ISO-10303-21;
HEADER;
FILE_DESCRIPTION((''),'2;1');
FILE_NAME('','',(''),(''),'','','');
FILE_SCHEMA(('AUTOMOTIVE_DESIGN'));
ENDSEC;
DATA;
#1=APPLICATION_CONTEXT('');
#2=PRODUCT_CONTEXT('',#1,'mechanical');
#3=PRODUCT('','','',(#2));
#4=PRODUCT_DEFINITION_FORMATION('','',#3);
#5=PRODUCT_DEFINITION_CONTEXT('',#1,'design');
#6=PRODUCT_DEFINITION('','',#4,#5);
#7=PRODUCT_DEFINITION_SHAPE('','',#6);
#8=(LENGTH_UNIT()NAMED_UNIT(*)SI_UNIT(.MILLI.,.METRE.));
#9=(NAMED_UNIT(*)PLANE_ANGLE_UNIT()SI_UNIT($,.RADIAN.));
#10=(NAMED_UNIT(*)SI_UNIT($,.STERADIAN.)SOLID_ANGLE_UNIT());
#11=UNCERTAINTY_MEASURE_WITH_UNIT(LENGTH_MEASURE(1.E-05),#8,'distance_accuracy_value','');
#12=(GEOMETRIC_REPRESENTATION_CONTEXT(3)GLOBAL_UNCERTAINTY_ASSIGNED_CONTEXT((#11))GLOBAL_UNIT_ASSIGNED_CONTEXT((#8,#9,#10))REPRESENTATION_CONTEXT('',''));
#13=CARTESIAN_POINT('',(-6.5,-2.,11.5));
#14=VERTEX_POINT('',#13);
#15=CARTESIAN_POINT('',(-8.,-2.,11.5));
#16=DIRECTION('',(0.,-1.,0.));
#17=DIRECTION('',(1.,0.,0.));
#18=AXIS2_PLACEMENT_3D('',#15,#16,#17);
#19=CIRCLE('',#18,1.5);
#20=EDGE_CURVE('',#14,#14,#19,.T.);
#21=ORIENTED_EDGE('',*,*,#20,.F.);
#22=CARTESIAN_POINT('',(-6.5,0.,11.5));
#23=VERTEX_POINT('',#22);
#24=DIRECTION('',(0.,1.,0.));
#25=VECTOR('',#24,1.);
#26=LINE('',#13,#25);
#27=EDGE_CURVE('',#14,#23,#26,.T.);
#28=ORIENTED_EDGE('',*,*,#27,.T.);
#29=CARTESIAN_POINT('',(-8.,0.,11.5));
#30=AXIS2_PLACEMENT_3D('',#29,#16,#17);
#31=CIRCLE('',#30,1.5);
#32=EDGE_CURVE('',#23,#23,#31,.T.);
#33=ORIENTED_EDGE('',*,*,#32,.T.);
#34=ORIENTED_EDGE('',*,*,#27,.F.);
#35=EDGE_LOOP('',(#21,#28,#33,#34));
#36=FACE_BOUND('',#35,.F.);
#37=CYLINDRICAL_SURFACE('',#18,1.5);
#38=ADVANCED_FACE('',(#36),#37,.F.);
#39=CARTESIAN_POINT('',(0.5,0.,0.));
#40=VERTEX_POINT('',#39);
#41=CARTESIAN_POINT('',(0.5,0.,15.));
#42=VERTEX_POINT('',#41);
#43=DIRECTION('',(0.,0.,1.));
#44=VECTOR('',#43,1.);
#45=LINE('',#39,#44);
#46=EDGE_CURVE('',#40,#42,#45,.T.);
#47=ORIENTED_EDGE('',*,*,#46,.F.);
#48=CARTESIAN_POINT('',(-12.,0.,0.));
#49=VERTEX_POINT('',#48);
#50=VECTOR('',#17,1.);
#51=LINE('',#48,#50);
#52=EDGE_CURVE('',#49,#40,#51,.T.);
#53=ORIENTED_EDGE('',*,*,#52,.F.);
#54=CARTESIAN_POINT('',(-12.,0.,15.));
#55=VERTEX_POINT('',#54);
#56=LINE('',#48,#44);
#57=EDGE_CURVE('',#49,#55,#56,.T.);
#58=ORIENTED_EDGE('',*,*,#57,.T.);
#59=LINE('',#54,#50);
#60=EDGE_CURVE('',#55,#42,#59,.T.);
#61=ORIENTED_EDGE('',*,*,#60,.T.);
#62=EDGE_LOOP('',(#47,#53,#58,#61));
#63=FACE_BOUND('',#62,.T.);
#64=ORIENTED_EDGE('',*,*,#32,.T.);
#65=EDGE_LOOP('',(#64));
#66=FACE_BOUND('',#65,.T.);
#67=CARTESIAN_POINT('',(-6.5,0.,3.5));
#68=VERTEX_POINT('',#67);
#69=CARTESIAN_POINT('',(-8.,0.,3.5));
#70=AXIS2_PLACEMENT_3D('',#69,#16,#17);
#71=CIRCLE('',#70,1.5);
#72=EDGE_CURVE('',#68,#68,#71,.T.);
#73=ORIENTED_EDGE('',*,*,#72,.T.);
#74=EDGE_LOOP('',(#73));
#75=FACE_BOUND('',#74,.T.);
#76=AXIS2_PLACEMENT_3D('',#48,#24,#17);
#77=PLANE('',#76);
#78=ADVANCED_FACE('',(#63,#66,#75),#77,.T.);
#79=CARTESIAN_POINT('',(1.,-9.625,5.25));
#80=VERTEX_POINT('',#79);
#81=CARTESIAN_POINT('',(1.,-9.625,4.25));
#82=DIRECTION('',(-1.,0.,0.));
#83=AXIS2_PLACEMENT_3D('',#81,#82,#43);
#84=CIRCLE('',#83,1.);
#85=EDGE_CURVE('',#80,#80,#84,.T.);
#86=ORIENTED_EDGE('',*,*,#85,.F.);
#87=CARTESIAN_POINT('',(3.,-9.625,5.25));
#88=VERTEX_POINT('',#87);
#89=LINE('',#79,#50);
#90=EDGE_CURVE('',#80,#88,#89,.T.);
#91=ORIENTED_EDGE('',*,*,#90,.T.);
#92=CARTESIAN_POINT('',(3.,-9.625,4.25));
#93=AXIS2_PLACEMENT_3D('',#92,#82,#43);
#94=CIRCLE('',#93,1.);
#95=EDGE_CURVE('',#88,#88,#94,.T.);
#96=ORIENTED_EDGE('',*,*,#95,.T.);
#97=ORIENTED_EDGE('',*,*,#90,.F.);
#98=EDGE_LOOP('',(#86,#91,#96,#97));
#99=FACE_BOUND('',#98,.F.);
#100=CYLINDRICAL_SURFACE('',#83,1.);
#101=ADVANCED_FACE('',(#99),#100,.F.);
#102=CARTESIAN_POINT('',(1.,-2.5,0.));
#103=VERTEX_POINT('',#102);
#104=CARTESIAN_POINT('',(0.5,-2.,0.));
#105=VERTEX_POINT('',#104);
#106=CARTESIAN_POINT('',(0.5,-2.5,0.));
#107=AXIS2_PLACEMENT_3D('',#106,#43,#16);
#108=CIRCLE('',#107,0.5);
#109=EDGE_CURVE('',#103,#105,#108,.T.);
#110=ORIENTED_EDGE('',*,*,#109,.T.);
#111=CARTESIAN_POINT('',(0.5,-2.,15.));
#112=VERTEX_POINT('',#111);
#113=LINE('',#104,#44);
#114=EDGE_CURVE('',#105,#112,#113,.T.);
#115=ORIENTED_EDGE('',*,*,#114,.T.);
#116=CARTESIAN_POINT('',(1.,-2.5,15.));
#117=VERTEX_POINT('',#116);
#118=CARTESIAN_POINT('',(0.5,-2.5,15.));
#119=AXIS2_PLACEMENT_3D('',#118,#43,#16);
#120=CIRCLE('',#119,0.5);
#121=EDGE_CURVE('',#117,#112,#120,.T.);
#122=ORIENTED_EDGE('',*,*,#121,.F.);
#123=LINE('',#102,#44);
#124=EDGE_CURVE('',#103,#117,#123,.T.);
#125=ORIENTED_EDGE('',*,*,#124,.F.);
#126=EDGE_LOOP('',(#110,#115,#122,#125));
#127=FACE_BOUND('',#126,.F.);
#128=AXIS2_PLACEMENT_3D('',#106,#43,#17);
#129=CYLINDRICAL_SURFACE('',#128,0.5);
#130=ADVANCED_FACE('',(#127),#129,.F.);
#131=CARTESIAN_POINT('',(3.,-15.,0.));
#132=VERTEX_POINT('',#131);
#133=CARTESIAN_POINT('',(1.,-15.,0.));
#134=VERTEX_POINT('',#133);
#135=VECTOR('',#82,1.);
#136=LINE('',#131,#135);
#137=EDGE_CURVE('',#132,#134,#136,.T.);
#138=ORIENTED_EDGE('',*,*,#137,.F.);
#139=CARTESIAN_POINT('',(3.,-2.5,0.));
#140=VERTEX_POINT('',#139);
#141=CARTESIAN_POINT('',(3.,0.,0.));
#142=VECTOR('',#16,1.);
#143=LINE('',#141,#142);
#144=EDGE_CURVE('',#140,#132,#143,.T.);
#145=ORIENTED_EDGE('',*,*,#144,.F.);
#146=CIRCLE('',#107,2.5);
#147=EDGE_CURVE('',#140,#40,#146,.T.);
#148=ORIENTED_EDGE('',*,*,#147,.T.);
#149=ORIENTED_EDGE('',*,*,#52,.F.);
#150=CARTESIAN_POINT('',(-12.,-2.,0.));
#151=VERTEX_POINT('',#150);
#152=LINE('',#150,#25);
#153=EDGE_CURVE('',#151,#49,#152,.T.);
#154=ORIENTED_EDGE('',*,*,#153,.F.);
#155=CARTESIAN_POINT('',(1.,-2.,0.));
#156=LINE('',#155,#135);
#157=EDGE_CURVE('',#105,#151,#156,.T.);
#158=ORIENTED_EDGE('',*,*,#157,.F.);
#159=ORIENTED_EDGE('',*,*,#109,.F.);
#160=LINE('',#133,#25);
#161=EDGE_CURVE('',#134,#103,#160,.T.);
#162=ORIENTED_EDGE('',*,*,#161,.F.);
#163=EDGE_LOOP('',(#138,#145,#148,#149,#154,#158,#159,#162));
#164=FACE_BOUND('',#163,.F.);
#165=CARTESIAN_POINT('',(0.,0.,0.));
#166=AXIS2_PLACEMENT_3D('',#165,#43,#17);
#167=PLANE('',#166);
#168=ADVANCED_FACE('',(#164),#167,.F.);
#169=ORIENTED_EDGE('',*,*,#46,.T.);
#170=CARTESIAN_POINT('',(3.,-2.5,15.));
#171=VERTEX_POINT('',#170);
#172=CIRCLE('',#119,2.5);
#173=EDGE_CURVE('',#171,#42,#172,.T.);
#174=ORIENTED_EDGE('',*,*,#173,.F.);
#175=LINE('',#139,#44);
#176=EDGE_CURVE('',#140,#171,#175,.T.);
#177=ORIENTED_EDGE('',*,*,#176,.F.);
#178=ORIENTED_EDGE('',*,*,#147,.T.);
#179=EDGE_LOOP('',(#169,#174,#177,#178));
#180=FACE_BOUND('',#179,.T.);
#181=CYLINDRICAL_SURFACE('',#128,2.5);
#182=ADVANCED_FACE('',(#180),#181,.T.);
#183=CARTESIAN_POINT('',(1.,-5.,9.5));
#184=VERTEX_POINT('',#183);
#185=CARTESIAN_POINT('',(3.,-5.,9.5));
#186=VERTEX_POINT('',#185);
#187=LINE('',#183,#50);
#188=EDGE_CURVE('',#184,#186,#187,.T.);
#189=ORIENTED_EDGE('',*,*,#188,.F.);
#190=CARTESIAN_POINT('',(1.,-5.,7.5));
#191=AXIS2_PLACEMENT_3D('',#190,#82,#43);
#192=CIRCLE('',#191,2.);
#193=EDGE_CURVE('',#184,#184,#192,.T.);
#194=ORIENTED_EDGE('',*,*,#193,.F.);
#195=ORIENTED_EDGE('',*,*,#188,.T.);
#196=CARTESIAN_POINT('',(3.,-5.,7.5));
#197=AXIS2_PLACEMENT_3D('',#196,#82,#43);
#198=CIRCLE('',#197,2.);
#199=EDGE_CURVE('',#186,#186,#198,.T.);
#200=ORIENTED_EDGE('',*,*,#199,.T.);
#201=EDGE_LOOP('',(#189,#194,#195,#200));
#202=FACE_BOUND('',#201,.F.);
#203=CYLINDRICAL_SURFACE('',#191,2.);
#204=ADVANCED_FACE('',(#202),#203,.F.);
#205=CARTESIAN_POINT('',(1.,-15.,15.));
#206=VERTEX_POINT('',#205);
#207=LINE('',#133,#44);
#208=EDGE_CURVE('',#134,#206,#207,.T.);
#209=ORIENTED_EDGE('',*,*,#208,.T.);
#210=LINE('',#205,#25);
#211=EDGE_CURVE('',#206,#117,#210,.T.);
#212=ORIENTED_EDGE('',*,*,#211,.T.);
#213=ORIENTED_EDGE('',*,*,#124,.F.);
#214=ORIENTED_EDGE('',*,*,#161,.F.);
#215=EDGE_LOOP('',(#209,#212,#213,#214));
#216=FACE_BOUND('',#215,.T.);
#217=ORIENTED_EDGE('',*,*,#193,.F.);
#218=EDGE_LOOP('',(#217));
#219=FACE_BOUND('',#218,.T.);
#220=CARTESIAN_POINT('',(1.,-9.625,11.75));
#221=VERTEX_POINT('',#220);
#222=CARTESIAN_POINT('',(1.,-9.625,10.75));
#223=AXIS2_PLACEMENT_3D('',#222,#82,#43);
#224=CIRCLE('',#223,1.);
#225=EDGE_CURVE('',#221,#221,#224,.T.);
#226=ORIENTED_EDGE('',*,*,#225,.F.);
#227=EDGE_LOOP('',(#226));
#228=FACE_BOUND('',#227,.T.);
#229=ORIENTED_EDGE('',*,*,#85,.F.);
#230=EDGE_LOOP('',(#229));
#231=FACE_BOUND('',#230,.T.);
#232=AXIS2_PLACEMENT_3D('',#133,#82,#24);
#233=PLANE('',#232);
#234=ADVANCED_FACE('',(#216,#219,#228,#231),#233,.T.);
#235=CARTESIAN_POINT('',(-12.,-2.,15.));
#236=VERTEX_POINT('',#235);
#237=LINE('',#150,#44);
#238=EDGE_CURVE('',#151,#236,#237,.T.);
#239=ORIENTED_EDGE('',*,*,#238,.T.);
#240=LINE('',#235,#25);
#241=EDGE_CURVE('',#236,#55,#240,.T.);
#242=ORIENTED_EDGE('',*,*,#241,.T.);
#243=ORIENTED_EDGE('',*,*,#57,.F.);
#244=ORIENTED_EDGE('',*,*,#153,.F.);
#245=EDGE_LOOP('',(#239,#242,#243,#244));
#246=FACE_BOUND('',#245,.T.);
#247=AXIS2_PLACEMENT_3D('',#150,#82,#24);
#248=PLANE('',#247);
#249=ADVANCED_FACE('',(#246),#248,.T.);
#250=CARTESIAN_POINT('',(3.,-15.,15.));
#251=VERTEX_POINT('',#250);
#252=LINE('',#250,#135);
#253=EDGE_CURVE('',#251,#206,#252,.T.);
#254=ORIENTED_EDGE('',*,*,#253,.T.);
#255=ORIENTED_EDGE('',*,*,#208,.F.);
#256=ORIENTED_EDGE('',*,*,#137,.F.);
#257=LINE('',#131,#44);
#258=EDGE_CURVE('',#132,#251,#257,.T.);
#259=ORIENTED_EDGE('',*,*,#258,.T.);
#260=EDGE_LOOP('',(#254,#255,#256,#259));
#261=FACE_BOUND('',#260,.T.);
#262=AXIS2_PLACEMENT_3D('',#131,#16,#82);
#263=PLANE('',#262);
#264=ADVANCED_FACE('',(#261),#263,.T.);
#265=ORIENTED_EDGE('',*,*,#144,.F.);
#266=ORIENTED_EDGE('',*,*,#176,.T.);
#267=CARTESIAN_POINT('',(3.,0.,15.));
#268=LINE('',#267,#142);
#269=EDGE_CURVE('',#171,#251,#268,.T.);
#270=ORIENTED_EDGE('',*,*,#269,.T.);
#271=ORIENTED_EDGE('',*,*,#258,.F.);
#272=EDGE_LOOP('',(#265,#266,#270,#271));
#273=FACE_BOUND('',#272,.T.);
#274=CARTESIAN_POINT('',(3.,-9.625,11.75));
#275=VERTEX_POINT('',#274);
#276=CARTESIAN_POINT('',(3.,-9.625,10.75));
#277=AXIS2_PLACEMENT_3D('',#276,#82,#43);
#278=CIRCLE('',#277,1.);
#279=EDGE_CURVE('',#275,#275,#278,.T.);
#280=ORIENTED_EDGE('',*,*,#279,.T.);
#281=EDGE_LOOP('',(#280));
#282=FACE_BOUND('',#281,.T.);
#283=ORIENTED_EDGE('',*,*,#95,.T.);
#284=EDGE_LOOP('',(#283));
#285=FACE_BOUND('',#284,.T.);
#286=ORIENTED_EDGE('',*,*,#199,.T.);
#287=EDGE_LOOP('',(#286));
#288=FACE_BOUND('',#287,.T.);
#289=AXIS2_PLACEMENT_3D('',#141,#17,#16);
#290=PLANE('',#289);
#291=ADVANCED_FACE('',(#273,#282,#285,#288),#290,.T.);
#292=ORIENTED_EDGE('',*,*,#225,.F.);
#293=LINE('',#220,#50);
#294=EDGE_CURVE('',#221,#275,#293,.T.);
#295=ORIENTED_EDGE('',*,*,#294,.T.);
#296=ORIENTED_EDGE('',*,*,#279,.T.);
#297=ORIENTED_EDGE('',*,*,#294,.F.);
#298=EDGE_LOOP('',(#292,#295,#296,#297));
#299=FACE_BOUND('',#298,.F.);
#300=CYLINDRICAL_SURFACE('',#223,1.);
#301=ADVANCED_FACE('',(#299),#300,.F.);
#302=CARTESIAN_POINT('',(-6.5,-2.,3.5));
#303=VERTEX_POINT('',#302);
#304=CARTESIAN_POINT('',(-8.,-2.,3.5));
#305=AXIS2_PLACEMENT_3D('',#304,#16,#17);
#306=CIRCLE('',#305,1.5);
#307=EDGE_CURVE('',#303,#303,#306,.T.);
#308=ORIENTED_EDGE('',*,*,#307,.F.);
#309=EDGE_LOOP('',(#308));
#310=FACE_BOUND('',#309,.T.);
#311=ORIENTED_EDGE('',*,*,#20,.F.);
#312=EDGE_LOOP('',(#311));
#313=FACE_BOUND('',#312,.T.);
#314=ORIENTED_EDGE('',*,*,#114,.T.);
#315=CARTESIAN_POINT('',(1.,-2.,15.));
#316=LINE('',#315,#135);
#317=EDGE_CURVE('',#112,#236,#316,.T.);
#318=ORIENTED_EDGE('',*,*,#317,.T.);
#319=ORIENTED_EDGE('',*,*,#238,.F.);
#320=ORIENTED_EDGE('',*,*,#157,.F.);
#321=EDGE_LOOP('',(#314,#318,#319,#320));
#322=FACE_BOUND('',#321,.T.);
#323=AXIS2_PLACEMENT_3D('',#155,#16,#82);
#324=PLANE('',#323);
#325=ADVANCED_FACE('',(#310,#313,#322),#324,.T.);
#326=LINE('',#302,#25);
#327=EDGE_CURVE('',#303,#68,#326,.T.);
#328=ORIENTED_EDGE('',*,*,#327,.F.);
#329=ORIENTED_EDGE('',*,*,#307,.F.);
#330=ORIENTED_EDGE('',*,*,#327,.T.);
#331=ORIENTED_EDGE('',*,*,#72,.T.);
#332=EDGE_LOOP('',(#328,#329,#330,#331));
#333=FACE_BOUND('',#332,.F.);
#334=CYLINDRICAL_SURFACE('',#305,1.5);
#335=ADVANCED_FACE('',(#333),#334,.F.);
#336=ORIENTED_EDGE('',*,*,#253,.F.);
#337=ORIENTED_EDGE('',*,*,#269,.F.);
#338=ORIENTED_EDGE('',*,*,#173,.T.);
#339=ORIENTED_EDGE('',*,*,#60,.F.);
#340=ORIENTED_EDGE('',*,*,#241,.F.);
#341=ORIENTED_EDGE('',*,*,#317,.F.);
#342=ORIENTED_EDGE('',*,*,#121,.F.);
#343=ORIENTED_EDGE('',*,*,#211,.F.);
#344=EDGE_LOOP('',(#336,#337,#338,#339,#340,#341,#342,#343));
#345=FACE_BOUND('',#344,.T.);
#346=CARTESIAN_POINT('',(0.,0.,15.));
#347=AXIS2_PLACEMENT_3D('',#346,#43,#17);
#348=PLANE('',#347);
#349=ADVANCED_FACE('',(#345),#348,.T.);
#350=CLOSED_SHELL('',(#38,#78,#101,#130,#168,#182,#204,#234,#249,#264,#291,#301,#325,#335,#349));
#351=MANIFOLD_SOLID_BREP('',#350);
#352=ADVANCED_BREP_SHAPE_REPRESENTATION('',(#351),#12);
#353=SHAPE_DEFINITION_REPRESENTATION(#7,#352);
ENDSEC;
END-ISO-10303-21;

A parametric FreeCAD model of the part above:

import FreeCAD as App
import Part
import Sketcher


def edges_at(feature, points):
    """Names of the edges that pass closest to the given points."""
    edges = feature.Shape.Edges
    near = lambda p: min(range(len(edges)), key=lambda i: edges[i].distToShape(Part.Vertex(*p))[0])
    return sorted({f"Edge{near(p) + 1}" for p in points})

doc = App.newDocument("Part")
body = doc.addObject("PartDesign::Body", "Body")

sketch1 = doc.addObject("Sketcher::SketchObject", "Sketch")
body.addObject(sketch1)
sketch1.AttachmentSupport = (doc.XY_Plane, [""])
sketch1.MapMode = "FlatFace"
sketch1.addGeometry([
    Part.LineSegment(App.Vector(3, -15, 0), App.Vector(3, 0, 0)),
    Part.LineSegment(App.Vector(3, 0, 0), App.Vector(-12, 0, 0)),
    Part.LineSegment(App.Vector(-12, 0, 0), App.Vector(-12, -2, 0)),
    Part.LineSegment(App.Vector(-12, -2, 0), App.Vector(1, -2, 0)),
    Part.LineSegment(App.Vector(1, -2, 0), App.Vector(1, -15, 0)),
    Part.LineSegment(App.Vector(1, -15, 0), App.Vector(3, -15, 0)),
], False)
sketch1.addConstraint([
    Sketcher.Constraint("Coincident", 0, 2, 1, 1),
    Sketcher.Constraint("Coincident", 1, 2, 2, 1),
    Sketcher.Constraint("Coincident", 2, 2, 3, 1),
    Sketcher.Constraint("Coincident", 3, 2, 4, 1),
    Sketcher.Constraint("Coincident", 4, 2, 5, 1),
    Sketcher.Constraint("Coincident", 5, 2, 0, 1),
    Sketcher.Constraint("Vertical", 0),
    Sketcher.Constraint("Horizontal", 1),
    Sketcher.Constraint("Vertical", 2),
    Sketcher.Constraint("Horizontal", 3),
    Sketcher.Constraint("Vertical", 4),
    Sketcher.Constraint("Horizontal", 5),
    Sketcher.Constraint("PointOnObject", 0, 2, -1),
    Sketcher.Constraint("Equal", 1, 0),
    Sketcher.Constraint("Equal", 5, 2),
    Sketcher.Constraint("DistanceX", 3, 1, 3, 2, 13.0),
    Sketcher.Constraint("DistanceX", 5, 1, 5, 2, 2.0),
    Sketcher.Constraint("DistanceX", -1, 1, 0, 2, 3.0),
])
pad1 = doc.addObject("PartDesign::Pad", "Pad")
body.addObject(pad1)
pad1.Profile = sketch1
pad1.Length = 15

sketch2 = doc.addObject("Sketcher::SketchObject", "Sketch001")
body.addObject(sketch2)
sketch2.AttachmentSupport = (doc.XZ_Plane, [""])
sketch2.MapMode = "FlatFace"
sketch2.AttachmentOffset = App.Placement(App.Vector(0, 0, 2), App.Rotation())
sketch2.addGeometry([
    Part.Circle(App.Vector(-8, 3.5, 0), App.Vector(0, 0, 1), 1.5),
    Part.Circle(App.Vector(-8, 11.5, 0), App.Vector(0, 0, 1), 1.5),
], False)
sketch2.addConstraint([
    Sketcher.Constraint("Equal", 0, 1),
    Sketcher.Constraint("Vertical", 0, 3, 1, 3),
    Sketcher.Constraint("Diameter", 0, 3.0),
    Sketcher.Constraint("DistanceY", -1, 1, 0, 3, 3.5),
    Sketcher.Constraint("DistanceX", 0, 3, -1, 1, 8.0),
    Sketcher.Constraint("DistanceY", 0, 3, 1, 3, 8.0),
])
pocket1 = doc.addObject("PartDesign::Pocket", "Pocket")
body.addObject(pocket1)
pocket1.Profile = sketch2
pocket1.Length = 10

sketch3 = doc.addObject("Sketcher::SketchObject", "Sketch002")
body.addObject(sketch3)
sketch3.AttachmentSupport = (doc.YZ_Plane, [""])
sketch3.MapMode = "FlatFace"
sketch3.AttachmentOffset = App.Placement(App.Vector(0, 0, 1), App.Rotation())
sketch3.addGeometry([
    Part.Circle(App.Vector(-9.625, 10.75, 0), App.Vector(0, 0, 1), 1),
    Part.Circle(App.Vector(-9.625, 4.25, 0), App.Vector(0, 0, 1), 1),
], False)
sketch3.addConstraint([
    Sketcher.Constraint("Equal", 0, 1),
    Sketcher.Constraint("Vertical", 0, 3, 1, 3),
    Sketcher.Constraint("Diameter", 0, 2.0),
    Sketcher.Constraint("DistanceY", -1, 1, 1, 3, 4.25),
    Sketcher.Constraint("DistanceY", 1, 3, 0, 3, 6.5),
    Sketcher.Constraint("DistanceX", 0, 3, -1, 1, 9.625),
])
pocket2 = doc.addObject("PartDesign::Pocket", "Pocket001")
body.addObject(pocket2)
pocket2.Profile = sketch3
pocket2.Length = 10
pocket2.Reversed = True

sketch4 = doc.addObject("Sketcher::SketchObject", "Sketch003")
body.addObject(sketch4)
sketch4.AttachmentSupport = (doc.YZ_Plane, [""])
sketch4.MapMode = "FlatFace"
sketch4.AttachmentOffset = App.Placement(App.Vector(0, 0, 1), App.Rotation())
sketch4.addGeometry(Part.Circle(App.Vector(-5, 7.5, 0), App.Vector(0, 0, 1), 2), False)
sketch4.addConstraint([
    Sketcher.Constraint("Diameter", 0, 4.0),
    Sketcher.Constraint("DistanceX", 0, 3, -1, 1, 5.0),
    Sketcher.Constraint("DistanceY", -1, 1, 0, 3, 7.5),
])
pocket3 = doc.addObject("PartDesign::Pocket", "Pocket002")
body.addObject(pocket3)
pocket3.Profile = sketch4
pocket3.Length = 10
pocket3.Reversed = True
doc.recompute()

fillet = doc.addObject("PartDesign::Fillet", "Fillet")
body.addObject(fillet)
fillet.Base = (pocket3, edges_at(pocket3, [(3, 0, 7.5)]))
fillet.Radius = 2.5
doc.recompute()

fillet2 = doc.addObject("PartDesign::Fillet", "Fillet001")
body.addObject(fillet2)
fillet2.Base = (fillet, edges_at(fillet, [(1, -2, 7.5)]))
fillet2.Radius = 0.5

doc.recompute()
